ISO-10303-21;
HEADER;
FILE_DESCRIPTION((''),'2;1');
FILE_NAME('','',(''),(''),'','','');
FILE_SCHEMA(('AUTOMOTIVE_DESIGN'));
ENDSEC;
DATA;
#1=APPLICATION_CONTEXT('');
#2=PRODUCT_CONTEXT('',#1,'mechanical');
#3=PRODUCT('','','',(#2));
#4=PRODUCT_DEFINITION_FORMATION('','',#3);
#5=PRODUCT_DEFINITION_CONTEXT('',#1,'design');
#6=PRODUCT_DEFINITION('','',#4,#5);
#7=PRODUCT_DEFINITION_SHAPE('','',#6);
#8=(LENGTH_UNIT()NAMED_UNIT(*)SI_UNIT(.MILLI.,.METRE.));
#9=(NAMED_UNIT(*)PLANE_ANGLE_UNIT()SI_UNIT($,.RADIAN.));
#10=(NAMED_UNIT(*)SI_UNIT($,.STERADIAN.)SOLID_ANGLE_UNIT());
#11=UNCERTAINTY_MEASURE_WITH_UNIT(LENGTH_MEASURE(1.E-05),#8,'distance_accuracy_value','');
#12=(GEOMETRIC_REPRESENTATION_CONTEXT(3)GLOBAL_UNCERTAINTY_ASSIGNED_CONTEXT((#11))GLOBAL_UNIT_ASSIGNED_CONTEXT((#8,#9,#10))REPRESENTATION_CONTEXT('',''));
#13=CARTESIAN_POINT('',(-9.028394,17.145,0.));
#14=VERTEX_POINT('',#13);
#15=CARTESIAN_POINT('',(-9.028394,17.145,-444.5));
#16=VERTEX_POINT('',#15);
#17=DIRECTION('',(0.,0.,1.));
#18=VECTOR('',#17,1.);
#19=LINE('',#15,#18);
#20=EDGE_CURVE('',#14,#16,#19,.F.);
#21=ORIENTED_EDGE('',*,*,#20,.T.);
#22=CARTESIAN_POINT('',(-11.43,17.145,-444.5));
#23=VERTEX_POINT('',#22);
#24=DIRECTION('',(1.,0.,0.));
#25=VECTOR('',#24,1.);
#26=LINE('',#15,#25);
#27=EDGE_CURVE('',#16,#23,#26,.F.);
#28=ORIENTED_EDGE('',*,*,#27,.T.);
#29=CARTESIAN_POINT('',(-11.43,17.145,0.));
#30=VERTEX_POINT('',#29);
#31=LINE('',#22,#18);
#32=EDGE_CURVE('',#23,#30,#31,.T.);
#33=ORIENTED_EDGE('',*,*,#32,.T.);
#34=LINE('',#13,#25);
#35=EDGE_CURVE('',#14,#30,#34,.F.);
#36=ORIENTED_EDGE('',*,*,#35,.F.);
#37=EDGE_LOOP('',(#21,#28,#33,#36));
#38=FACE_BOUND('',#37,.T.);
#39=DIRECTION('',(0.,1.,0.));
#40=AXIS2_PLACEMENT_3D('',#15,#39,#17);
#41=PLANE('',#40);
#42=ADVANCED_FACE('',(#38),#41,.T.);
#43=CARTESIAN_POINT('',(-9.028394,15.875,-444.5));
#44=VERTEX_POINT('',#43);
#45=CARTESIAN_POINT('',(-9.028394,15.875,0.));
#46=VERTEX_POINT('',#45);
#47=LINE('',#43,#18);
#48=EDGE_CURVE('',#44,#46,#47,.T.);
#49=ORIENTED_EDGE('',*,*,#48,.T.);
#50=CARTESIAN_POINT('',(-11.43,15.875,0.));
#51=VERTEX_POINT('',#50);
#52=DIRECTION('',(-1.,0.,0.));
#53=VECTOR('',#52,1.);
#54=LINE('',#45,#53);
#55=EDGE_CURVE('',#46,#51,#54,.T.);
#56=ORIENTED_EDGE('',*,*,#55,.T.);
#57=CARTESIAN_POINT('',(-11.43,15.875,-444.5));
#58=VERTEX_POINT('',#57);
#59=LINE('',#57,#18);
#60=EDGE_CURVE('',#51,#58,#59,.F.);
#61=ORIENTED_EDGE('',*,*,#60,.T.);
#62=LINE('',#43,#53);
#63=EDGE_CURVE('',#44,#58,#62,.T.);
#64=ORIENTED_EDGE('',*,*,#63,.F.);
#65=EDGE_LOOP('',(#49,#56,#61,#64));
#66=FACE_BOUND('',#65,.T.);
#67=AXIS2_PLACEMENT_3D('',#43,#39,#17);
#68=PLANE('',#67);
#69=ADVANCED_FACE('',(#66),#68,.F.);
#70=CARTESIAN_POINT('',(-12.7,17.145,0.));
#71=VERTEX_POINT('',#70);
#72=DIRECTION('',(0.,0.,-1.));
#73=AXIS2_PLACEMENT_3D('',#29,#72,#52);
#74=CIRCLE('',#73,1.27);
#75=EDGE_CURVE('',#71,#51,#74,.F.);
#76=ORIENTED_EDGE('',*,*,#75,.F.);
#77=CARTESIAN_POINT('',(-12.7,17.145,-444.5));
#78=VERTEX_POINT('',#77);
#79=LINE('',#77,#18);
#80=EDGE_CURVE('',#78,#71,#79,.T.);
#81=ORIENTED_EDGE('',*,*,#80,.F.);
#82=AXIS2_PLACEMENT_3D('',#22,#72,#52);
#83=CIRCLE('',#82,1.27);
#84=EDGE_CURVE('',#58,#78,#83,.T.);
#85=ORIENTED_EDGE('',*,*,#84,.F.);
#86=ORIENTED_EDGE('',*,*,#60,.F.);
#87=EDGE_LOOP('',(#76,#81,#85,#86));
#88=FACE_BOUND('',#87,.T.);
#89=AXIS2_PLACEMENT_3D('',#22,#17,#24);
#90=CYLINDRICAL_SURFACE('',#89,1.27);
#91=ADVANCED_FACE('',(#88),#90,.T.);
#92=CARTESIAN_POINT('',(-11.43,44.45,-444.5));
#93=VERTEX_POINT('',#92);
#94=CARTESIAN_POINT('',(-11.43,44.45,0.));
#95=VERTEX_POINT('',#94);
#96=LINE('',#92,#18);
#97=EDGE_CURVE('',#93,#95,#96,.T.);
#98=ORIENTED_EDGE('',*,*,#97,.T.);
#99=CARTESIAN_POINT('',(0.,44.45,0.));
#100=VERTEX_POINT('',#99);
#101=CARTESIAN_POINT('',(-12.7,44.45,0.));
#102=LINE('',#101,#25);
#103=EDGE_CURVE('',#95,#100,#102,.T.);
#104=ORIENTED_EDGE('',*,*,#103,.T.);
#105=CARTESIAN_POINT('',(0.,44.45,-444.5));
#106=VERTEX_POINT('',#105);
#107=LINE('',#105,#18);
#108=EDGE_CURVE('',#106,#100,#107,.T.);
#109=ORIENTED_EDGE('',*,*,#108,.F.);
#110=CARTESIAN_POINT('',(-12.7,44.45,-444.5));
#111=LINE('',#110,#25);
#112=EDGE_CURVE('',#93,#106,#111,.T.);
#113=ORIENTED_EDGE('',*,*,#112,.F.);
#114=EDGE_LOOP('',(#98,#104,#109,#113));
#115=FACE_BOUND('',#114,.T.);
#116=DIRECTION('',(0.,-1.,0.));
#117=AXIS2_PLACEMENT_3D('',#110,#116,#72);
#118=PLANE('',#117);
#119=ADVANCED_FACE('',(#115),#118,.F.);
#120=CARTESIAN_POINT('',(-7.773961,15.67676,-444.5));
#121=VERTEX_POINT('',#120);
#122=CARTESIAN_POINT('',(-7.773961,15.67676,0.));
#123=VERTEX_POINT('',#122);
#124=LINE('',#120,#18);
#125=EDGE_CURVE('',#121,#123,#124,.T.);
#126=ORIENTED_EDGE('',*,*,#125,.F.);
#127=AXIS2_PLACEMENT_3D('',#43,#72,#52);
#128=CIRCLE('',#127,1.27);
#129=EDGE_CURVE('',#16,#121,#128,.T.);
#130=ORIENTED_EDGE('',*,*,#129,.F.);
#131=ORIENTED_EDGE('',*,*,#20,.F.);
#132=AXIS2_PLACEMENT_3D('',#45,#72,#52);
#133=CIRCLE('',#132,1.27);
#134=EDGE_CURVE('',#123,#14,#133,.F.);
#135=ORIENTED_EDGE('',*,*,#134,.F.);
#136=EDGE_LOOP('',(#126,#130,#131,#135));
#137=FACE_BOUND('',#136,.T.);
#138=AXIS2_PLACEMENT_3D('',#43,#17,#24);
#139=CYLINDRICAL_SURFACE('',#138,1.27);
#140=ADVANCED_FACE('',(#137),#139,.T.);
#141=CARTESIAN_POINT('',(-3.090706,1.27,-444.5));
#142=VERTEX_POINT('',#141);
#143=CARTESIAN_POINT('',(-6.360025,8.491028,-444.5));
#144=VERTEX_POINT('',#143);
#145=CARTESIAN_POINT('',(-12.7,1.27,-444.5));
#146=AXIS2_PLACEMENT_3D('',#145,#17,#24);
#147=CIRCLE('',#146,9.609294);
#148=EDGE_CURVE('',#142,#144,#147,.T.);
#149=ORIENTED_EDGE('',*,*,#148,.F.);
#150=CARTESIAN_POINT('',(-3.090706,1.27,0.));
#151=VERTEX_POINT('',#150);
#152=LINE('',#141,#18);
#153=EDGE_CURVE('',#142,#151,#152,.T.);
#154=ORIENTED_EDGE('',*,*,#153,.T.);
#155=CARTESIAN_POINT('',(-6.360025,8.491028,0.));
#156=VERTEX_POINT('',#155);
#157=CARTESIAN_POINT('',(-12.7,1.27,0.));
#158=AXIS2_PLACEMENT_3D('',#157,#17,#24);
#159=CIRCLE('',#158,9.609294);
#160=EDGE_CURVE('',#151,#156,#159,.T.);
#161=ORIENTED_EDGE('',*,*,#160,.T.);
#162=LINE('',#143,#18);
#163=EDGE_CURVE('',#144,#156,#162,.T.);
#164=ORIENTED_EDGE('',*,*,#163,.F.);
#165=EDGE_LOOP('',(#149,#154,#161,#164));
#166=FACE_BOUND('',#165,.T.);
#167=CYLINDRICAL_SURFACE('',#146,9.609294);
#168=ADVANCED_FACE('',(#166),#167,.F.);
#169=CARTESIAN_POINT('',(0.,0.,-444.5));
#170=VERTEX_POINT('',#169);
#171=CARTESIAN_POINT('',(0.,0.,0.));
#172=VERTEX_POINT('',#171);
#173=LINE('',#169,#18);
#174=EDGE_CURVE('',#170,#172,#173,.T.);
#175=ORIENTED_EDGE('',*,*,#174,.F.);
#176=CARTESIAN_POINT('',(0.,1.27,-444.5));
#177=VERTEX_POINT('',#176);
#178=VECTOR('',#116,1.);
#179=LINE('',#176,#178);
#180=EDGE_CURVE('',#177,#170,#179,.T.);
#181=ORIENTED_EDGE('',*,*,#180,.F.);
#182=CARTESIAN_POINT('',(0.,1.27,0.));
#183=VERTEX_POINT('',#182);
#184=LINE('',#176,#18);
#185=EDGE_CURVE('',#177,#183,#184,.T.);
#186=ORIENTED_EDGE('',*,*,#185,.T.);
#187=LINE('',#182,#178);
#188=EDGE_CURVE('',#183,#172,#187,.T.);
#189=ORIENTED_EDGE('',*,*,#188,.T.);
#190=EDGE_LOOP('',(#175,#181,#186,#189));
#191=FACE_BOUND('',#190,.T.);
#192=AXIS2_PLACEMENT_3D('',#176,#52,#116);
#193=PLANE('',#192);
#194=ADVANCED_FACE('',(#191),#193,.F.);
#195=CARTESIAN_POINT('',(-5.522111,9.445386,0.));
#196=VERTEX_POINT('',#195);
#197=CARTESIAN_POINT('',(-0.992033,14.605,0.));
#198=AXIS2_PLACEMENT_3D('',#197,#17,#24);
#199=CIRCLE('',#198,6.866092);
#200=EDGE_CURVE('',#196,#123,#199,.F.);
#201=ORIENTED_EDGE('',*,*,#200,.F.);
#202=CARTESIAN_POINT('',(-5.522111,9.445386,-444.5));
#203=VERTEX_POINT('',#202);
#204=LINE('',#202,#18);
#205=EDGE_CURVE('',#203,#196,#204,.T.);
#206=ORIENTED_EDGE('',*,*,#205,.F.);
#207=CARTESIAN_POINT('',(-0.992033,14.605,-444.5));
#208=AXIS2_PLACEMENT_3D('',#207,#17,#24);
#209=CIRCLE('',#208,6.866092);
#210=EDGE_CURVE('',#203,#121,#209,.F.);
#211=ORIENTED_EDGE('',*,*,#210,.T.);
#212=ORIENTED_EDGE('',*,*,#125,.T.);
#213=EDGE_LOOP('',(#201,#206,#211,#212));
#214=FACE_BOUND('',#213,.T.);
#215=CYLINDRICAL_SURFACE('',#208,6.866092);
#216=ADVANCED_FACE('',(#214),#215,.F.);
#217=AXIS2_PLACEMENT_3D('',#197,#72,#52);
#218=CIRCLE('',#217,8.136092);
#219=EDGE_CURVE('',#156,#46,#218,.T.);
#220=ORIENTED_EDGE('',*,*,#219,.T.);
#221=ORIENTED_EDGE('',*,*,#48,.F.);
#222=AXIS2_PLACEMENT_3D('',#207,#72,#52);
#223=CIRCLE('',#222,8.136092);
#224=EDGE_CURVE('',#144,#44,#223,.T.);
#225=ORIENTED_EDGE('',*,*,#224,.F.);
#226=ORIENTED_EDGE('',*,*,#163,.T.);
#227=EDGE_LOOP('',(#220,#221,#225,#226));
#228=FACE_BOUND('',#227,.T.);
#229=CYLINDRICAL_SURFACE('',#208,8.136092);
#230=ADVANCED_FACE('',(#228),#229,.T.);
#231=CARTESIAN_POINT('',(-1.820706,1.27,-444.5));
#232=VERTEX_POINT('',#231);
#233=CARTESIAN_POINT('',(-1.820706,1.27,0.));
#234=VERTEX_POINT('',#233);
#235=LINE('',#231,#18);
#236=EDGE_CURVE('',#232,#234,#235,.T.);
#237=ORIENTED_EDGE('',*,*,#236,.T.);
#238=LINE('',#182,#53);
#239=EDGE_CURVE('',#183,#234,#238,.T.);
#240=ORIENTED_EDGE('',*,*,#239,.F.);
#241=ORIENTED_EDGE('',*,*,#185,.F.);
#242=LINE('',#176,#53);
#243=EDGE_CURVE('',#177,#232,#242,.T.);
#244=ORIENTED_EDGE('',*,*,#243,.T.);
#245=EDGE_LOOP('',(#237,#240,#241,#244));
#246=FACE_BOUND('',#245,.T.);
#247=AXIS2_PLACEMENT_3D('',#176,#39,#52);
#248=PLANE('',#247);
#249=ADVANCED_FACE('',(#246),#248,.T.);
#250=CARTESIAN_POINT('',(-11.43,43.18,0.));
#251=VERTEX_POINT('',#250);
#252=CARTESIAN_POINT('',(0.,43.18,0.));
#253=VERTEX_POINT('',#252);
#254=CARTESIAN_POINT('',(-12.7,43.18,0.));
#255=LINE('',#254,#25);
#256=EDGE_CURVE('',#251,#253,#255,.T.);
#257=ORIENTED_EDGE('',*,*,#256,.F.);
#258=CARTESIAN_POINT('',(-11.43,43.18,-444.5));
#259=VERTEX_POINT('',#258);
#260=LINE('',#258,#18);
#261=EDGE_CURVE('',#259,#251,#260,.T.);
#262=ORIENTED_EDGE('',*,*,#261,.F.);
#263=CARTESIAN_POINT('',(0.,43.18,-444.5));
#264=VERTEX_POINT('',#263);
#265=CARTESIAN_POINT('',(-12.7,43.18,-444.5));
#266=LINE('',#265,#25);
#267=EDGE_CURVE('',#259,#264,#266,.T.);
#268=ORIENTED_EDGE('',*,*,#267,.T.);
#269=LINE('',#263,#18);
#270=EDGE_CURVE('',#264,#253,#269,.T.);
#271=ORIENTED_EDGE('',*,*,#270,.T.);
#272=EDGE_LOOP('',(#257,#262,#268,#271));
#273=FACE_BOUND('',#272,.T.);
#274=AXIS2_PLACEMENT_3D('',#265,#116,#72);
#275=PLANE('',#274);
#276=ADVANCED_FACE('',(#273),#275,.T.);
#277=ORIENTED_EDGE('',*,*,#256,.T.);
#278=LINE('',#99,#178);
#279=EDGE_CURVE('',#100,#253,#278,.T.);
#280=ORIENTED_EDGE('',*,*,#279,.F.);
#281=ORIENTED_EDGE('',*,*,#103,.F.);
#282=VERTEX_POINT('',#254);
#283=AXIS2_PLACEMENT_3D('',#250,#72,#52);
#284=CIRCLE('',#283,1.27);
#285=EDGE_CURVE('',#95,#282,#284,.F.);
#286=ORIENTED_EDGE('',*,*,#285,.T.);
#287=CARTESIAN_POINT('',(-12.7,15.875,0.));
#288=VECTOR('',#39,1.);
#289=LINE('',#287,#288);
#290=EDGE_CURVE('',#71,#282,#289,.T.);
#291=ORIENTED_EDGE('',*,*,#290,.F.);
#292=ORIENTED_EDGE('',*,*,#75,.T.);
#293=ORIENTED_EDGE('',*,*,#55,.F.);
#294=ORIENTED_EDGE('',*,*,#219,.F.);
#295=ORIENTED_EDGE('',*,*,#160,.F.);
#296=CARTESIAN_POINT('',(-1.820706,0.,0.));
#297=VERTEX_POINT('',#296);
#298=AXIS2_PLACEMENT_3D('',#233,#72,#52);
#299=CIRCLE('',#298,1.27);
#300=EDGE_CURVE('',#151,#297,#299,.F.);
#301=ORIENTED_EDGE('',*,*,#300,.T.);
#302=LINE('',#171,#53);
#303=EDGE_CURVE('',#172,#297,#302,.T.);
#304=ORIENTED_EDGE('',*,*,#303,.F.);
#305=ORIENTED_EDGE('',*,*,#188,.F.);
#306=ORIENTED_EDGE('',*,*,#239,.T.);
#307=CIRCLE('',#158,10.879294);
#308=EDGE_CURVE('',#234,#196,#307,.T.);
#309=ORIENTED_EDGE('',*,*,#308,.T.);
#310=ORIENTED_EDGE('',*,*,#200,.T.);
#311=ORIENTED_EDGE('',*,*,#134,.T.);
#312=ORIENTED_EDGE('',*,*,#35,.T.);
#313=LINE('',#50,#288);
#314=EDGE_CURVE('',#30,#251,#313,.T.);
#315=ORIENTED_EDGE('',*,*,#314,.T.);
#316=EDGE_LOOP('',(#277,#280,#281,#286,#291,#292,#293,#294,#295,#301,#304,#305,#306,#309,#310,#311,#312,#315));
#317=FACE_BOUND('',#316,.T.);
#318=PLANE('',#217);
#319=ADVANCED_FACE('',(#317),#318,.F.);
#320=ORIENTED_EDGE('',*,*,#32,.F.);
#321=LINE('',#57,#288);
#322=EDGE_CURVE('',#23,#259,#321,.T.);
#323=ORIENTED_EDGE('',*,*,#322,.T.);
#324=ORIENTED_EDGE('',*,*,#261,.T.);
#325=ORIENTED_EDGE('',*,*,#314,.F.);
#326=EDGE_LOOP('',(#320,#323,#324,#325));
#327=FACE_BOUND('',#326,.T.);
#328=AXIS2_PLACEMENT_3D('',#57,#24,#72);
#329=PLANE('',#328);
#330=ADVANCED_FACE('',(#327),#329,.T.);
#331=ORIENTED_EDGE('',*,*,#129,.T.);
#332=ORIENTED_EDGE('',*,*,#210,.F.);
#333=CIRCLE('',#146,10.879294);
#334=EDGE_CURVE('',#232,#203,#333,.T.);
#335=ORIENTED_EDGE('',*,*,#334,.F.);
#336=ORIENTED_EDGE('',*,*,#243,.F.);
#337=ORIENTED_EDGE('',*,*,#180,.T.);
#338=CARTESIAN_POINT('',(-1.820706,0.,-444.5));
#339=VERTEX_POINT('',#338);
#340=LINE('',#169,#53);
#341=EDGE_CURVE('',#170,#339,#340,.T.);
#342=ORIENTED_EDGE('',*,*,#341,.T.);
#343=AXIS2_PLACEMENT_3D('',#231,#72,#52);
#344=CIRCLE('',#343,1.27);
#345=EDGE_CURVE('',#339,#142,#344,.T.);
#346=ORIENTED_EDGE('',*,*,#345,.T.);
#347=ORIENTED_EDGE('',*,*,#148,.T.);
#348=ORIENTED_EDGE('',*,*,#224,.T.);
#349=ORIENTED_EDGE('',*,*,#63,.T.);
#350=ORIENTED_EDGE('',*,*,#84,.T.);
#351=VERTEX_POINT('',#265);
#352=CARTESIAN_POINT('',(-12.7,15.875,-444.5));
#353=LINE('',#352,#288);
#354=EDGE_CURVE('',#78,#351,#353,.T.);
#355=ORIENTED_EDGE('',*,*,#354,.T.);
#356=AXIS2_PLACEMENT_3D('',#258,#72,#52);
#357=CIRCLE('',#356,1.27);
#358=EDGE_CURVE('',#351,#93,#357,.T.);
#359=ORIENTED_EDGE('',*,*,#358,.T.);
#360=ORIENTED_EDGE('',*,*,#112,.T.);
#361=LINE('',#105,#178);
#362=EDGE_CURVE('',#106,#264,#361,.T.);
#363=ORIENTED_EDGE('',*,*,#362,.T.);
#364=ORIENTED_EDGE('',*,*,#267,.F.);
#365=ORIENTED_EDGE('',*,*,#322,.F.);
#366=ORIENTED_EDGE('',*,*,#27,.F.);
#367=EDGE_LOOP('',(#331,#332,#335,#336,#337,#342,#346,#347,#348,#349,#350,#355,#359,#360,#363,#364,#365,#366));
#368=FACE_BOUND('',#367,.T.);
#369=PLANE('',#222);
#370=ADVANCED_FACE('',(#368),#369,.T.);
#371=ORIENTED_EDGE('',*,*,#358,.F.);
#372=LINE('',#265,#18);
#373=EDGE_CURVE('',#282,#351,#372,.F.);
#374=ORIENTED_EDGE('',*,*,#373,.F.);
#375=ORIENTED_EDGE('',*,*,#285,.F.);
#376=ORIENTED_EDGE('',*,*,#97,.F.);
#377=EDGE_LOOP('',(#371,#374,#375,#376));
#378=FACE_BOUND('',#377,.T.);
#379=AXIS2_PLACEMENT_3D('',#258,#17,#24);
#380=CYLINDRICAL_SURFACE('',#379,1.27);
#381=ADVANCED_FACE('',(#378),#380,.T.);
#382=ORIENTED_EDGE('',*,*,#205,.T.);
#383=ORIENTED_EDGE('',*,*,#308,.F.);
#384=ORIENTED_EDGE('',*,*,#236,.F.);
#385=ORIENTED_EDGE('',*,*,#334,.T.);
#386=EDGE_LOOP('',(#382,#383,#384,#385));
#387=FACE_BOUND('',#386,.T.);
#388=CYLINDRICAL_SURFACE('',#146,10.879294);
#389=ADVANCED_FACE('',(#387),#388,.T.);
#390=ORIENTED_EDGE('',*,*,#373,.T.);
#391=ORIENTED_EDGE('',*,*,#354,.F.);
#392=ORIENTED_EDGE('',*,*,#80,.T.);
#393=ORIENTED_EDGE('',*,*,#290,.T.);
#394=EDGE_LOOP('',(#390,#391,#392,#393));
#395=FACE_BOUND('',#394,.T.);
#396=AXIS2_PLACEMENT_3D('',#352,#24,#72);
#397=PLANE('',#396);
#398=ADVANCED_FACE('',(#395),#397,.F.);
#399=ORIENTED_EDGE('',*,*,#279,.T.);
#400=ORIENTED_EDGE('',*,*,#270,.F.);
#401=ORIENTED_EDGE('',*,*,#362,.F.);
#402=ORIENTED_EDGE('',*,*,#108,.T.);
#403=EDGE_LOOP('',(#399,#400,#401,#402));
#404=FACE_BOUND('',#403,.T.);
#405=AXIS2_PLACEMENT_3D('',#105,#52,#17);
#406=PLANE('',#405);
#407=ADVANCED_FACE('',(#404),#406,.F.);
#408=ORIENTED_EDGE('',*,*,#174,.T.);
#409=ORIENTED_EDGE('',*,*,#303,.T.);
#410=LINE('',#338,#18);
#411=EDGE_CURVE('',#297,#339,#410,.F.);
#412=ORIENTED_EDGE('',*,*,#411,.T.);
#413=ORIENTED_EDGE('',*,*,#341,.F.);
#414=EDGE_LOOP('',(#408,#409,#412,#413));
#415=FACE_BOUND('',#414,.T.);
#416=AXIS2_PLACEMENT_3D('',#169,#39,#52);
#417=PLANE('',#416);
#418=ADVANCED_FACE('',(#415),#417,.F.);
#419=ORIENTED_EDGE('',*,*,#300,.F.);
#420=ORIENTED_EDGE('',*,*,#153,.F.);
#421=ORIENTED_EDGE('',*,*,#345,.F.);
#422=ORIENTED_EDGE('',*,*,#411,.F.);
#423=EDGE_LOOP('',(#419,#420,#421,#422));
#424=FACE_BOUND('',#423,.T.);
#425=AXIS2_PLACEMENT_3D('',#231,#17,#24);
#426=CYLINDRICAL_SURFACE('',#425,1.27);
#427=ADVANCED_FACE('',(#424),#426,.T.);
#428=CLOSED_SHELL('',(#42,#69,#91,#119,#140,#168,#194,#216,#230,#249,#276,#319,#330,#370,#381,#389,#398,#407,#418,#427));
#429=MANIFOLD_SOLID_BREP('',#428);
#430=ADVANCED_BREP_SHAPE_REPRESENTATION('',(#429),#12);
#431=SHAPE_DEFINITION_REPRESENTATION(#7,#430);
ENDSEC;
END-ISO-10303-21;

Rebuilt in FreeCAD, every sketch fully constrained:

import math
import FreeCAD as App
import Part
import Sketcher
from FreeCAD import Vector
Q = App.Units.Quantity


def edges_at(feature, points):
    """Names of the edges that pass closest to the given points."""
    edges = feature.Shape.Edges
    near = lambda p: min(range(len(edges)), key=lambda i: edges[i].distToShape(Part.Vertex(*p))[0])
    return sorted({f"Edge{near(p) + 1}" for p in points})

doc = App.newDocument("Part")
body = doc.addObject("PartDesign::Body", "Body")

# Sketch on XY plane
sketch1 = doc.addObject("Sketcher::SketchObject", "Sketch")
body.addObject(sketch1)
sketch1.AttachmentSupport = (doc.XY_Plane, [""])
sketch1.MapMode = "FlatFace"
sketch1.addGeometry([
    Part.LineSegment(Vector(-3.2, 0, 0), Vector(0, 0, 0)),  # 0
    Part.LineSegment(Vector(0, 0, 0), Vector(0, 1.3, 0)),  # 1
    Part.LineSegment(Vector(0, 1.3, 0), Vector(-1.8, 1.3, 0)),  # 2
    Part.ArcOfCircle(Part.Circle(Vector(-12.7, 1.3, 0), Vector(0, 0, 1), 10.9), math.radians(0), math.radians(49)),  # 3
    Part.ArcOfCircle(Part.Circle(Vector(-1, 14.6, 0), Vector(0, 0, 1), 6.9), math.radians(158), math.radians(229)),  # 4
    Part.LineSegment(Vector(-7.4, 17.1, 0), Vector(-11.4, 17.1, 0)),  # 5
    Part.LineSegment(Vector(-11.4, 17.1, 0), Vector(-11.4, 43.2, 0)),  # 6
    Part.LineSegment(Vector(-11.4, 43.2, 0), Vector(0, 43.2, 0)),  # 7
    Part.LineSegment(Vector(0, 43.2, 0), Vector(0, 44.5, 0)),  # 8
    Part.LineSegment(Vector(0, 44.5, 0), Vector(-12.7, 44.5, 0)),  # 9
    Part.LineSegment(Vector(-12.7, 44.5, 0), Vector(-12.7, 15.9, 0)),  # 10
    Part.LineSegment(Vector(-12.7, 15.9, 0), Vector(-9, 15.9, 0)),  # 11
    Part.ArcOfCircle(Part.Circle(Vector(-1, 14.6, 0), Vector(0, 0, 1), 8.1), math.radians(171), math.radians(229)),  # 12
    Part.ArcOfCircle(Part.Circle(Vector(-12.7, 1.3, 0), Vector(0, 0, 1), 9.6), math.radians(-8), math.radians(49)),  # 13
], False)
sketch1.addConstraint([
    Sketcher.Constraint("Coincident", 0, 2, 1, 1),
    Sketcher.Constraint("Coincident", 1, 2, 2, 1),
    Sketcher.Constraint("Coincident", 2, 2, 3, 1),
    Sketcher.Constraint("Tangent", 3, 2, 4, 2),
    Sketcher.Constraint("Coincident", 4, 1, 5, 1),
    Sketcher.Constraint("Coincident", 5, 2, 6, 1),
    Sketcher.Constraint("Coincident", 6, 2, 7, 1),
    Sketcher.Constraint("Coincident", 7, 2, 8, 1),
    Sketcher.Constraint("Coincident", 8, 2, 9, 1),
    Sketcher.Constraint("Coincident", 9, 2, 10, 1),
    Sketcher.Constraint("Coincident", 10, 2, 11, 1),
    Sketcher.Constraint("Coincident", 11, 2, 12, 1),
    Sketcher.Constraint("Tangent", 12, 2, 13, 2),
    Sketcher.Constraint("Coincident", 13, 1, 0, 1),
    Sketcher.Constraint("Horizontal", 0),
    Sketcher.Constraint("Vertical", 1),
    Sketcher.Constraint("Horizontal", 2),
    Sketcher.Constraint("Horizontal", 5),
    Sketcher.Constraint("Vertical", 6),
    Sketcher.Constraint("Horizontal", 7),
    Sketcher.Constraint("Vertical", 8),
    Sketcher.Constraint("Horizontal", 9),
    Sketcher.Constraint("Vertical", 10),
    Sketcher.Constraint("Horizontal", 11),
    Sketcher.Constraint("Coincident", 0, 2, -1, 1),
    Sketcher.Constraint("Coincident", 12, 3, 4, 3),
    Sketcher.Constraint("Coincident", 13, 3, 3, 3),
    Sketcher.Constraint("PointOnObject", 7, 2, -2),
    Sketcher.Constraint("Horizontal", 13, 3, 1, 2),
    Sketcher.Constraint("Vertical", 13, 3, 9, 2),
    Sketcher.Constraint("Equal", 1, 8),
    Sketcher.Constraint("DistanceX", 9, 2, 9, 1, Q("0.5 in")),
    Sketcher.Constraint("DistanceX", 7, 1, 7, 2, Q("0.45 in")),
    Sketcher.Constraint("DistanceY", 1, 1, 1, 2, Q("0.05 in")),
    Sketcher.Constraint("DistanceY", -1, 1, 6, 2, Q("1.7 in")),
    Sketcher.Constraint("DistanceY", 12, 3, 4, 1, Q("0.1 in")),
    Sketcher.Constraint("DistanceX", 0, 1, 0, 2, Q("0.125 in")),
    Sketcher.Constraint("DistanceY", 6, 1, 6, 2, Q("1.025 in")),
    Sketcher.Constraint("DistanceY", 10, 2, 10, 1, Q("1.125 in")),
    Sketcher.Constraint("Radius", 3, Q("10.879294 mm")),
    Sketcher.Constraint("Radius", 4, Q("6.866092 mm")),
])
pad1 = doc.addObject("PartDesign::Pad", "Pad")
body.addObject(pad1)
pad1.Profile = sketch1
pad1.Length = Q("17.5 in")
pad1.Reversed = True
doc.recompute()

fillet = doc.addObject("PartDesign::Fillet", "Fillet")
body.addObject(fillet)
fillet.Base = (pad1, edges_at(pad1, [
    (-7.371, 17.145, -222.25),
    (-3.175, 0, -222.25),
    (-12.7, 15.875, -222.25),
    (-12.7, 44.45, -222.25),
]))
fillet.Radius = Q("0.05 in")

doc.recompute()
